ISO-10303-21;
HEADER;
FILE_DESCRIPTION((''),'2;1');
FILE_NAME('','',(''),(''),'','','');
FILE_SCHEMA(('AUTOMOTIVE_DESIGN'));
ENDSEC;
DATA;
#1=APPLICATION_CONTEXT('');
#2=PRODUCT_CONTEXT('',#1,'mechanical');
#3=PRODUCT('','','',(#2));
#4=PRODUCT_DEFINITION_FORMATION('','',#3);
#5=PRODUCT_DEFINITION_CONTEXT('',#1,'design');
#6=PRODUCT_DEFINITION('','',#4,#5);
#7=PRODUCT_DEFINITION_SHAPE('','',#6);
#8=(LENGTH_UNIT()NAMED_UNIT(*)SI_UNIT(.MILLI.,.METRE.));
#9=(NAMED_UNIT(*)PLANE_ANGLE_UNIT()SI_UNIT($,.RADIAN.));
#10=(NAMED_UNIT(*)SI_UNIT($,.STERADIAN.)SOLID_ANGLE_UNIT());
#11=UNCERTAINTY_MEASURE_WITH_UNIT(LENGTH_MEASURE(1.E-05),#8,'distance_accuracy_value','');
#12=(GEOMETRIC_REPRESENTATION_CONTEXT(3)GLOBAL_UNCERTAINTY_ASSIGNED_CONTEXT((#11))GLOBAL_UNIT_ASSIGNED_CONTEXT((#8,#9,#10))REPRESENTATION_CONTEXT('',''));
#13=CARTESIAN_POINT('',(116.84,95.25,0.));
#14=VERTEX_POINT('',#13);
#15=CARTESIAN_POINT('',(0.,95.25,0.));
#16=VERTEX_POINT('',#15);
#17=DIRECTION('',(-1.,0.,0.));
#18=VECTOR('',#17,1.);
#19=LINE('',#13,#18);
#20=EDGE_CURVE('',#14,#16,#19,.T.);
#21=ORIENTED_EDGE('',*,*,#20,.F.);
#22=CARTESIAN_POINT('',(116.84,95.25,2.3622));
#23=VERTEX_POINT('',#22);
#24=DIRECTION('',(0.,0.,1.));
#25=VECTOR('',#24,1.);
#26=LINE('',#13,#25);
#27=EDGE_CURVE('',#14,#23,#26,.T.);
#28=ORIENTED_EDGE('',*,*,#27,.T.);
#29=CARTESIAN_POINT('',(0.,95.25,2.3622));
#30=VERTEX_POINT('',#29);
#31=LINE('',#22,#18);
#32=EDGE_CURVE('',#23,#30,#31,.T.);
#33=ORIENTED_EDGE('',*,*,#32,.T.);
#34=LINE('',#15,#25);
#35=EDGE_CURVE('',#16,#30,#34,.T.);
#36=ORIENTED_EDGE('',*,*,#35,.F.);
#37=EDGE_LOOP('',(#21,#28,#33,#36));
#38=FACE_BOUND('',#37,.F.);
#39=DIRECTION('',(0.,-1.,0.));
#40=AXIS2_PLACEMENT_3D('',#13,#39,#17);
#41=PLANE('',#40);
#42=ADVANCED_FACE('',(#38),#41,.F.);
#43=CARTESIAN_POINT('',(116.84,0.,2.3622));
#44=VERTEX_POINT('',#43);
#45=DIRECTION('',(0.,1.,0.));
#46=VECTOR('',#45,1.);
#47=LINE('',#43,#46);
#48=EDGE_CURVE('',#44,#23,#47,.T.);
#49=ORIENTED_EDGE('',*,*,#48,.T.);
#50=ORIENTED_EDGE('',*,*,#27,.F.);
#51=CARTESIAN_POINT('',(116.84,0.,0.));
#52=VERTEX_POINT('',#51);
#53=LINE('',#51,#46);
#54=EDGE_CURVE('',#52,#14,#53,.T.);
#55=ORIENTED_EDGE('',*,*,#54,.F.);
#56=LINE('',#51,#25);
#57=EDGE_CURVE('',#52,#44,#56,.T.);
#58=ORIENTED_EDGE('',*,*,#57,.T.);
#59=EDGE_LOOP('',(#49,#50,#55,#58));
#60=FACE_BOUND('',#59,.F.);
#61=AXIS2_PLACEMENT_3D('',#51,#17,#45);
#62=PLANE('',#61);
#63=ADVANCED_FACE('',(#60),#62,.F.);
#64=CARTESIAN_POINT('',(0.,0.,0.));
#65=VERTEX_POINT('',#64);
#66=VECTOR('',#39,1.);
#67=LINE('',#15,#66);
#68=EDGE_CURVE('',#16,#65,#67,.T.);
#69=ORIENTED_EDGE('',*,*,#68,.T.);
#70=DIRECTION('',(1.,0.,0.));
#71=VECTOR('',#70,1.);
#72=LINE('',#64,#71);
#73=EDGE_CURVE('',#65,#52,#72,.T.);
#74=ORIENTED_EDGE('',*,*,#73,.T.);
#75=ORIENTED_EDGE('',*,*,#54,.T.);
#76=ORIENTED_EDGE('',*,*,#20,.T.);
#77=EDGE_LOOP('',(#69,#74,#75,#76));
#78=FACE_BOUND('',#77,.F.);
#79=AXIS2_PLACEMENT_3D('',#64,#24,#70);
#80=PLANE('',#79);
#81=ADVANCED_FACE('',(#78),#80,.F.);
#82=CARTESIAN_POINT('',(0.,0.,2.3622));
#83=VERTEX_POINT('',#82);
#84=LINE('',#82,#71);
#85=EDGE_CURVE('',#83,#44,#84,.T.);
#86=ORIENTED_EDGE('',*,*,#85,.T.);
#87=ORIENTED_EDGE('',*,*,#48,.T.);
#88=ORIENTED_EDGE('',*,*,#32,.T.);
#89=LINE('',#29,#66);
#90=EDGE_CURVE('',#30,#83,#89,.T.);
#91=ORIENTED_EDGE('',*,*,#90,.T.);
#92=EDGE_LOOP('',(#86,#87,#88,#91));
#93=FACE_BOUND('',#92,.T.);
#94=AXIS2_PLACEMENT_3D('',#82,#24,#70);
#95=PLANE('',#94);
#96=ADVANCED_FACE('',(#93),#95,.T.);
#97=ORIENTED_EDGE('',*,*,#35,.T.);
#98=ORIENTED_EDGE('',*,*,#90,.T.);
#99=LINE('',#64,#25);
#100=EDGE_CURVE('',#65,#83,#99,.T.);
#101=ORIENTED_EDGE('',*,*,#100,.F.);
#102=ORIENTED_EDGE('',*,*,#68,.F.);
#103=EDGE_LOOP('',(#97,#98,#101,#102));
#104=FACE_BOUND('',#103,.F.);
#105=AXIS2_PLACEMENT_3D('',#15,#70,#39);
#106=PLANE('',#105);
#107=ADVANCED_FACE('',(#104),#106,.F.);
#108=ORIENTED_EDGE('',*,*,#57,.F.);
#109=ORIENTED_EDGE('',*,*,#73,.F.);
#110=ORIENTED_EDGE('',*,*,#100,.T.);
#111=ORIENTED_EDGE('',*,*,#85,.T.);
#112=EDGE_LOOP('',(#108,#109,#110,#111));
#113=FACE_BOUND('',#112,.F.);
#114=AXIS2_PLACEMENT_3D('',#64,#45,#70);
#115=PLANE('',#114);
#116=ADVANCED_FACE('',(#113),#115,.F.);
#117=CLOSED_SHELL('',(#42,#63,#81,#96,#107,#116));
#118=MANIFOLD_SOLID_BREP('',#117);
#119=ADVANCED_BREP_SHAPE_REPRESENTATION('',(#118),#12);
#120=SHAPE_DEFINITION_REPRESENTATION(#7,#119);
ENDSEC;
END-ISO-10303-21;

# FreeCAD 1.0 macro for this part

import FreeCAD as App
import Part
import Sketcher

V = App.Vector
Q = App.Units.Quantity

doc = App.newDocument("Part")
params = doc.addObject("Spreadsheet::Sheet", "Params")
for row, (alias, value) in enumerate([
    ("sketch1_width", "4.6 in"),
    ("sketch1_height", "3.75 in"),
    ("pad1_length", "0.093 in"),
], start=1):
    params.set(f"A{row}", alias)
    params.set(f"B{row}", "=" + value)
    params.setAlias(f"B{row}", alias)

body = doc.addObject("PartDesign::Body", "Body")

# Sketch on XY plane
sketch1 = body.newObject("Sketcher::SketchObject", "Sketch")
sketch1.AttachmentSupport = (doc.getObject("XY_Plane"), [""])
sketch1.MapMode = "FlatFace"
sketch1.addGeometry([
    Part.LineSegment(V(0, 95, 0), V(0, 0, 0)),
    Part.LineSegment(V(0, 0, 0), V(117, 0, 0)),
    Part.LineSegment(V(117, 0, 0), V(117, 95, 0)),
    Part.LineSegment(V(117, 95, 0), V(0, 95, 0)),
], False)
sketch1.addConstraint([
    Sketcher.Constraint("Coincident", 0, 2, 1, 1),
    Sketcher.Constraint("Coincident", 1, 2, 2, 1),
    Sketcher.Constraint("Coincident", 2, 2, 3, 1),
    Sketcher.Constraint("Coincident", 3, 2, 0, 1),
    Sketcher.Constraint("Vertical", 0),
    Sketcher.Constraint("Horizontal", 1),
    Sketcher.Constraint("Vertical", 2),
    Sketcher.Constraint("Horizontal", 3),
    Sketcher.Constraint("Coincident", 0, 2, -1, 1),
    Sketcher.Constraint("DistanceX", 1, 1, 1, 2, Q("4.6 in")),
    Sketcher.Constraint("DistanceY", 0, 2, 0, 1, Q("3.75 in")),
])
sketch1.setExpression("Constraints[9]", "Params.sketch1_width")
sketch1.setExpression("Constraints[10]", "Params.sketch1_height")
pad1 = body.newObject("PartDesign::Pad", "Pad")
pad1.Profile = sketch1
pad1.setExpression("Length", "Params.pad1_length")

doc.recompute()
